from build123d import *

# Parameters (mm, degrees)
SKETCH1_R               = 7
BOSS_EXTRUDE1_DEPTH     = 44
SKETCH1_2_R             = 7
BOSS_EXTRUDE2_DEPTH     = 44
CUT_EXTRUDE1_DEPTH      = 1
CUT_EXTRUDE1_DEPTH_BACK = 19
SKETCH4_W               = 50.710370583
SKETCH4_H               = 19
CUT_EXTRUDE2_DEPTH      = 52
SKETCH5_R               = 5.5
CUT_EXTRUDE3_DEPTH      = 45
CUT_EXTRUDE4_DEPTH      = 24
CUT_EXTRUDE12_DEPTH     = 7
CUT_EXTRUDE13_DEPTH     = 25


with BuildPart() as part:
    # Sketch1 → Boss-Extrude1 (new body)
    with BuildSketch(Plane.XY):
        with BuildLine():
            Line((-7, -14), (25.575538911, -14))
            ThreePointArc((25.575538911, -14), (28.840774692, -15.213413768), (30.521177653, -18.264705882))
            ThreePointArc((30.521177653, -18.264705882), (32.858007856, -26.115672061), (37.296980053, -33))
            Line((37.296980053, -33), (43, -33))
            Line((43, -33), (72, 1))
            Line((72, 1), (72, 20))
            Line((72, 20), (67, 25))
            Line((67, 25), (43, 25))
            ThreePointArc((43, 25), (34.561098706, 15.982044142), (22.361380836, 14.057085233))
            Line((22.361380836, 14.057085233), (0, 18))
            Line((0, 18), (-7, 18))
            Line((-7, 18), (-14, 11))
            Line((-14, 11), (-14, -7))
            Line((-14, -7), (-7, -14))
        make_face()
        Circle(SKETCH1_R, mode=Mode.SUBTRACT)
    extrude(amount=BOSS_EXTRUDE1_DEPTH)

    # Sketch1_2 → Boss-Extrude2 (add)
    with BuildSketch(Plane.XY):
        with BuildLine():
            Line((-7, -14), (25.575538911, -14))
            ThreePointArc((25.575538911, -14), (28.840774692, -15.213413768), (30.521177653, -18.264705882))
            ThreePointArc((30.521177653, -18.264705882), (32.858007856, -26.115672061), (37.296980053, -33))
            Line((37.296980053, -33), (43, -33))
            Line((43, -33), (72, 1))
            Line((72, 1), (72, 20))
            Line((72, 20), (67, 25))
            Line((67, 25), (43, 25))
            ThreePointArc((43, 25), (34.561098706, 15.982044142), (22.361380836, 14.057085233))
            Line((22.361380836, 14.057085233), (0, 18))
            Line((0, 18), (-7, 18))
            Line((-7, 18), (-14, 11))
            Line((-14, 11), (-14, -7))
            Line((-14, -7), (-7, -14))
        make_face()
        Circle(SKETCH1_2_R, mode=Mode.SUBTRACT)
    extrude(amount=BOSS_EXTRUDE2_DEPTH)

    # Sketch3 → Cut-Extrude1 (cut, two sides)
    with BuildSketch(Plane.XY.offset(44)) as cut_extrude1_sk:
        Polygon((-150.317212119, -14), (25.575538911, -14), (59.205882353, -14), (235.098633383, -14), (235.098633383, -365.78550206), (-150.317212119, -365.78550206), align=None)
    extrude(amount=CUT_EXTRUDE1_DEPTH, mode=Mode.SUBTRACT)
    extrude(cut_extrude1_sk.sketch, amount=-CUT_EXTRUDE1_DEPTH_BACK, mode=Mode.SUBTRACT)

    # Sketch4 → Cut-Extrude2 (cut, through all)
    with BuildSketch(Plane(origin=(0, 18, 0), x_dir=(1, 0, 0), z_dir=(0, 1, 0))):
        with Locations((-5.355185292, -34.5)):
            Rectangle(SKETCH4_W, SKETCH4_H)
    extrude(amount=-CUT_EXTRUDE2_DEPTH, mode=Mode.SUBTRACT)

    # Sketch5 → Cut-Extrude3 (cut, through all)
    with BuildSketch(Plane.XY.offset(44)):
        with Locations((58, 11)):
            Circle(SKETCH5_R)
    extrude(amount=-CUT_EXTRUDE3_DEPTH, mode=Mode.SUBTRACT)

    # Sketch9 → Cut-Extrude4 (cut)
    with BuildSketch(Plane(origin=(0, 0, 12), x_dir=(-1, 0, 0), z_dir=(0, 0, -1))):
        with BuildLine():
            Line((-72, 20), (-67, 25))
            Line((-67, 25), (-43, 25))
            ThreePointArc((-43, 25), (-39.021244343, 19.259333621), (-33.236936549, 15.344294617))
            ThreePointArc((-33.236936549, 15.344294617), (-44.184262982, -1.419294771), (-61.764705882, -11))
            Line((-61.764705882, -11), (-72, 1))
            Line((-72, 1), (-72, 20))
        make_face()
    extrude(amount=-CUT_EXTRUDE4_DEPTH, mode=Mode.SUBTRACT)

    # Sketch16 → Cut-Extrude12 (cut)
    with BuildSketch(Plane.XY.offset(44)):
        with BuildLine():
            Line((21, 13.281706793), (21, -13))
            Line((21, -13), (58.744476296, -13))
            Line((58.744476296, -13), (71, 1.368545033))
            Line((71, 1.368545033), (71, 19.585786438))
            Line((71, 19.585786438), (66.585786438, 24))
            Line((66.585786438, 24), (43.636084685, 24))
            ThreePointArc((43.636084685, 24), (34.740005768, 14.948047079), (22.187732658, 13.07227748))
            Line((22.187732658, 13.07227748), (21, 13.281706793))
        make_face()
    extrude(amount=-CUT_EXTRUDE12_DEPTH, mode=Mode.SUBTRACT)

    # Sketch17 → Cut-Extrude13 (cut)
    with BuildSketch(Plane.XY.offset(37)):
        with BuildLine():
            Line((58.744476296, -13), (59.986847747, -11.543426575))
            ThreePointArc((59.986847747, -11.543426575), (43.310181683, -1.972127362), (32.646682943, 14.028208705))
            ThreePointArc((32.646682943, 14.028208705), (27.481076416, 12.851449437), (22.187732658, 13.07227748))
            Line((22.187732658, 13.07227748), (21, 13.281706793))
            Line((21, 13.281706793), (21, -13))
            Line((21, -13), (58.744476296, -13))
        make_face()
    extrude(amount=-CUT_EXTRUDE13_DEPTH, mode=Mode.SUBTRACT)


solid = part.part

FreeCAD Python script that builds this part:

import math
import FreeCAD as App
import Part
import Sketcher

V = App.Vector
Q = App.Units.Quantity

doc = App.newDocument("Part")
params = doc.addObject("Spreadsheet::Sheet", "Params")
for row, (alias, value) in enumerate([
    ("sketch1_diameter", "14 mm"),
    ("sketch1_radius", "5 mm"),
    ("sketch1_radius2", "29 mm"),
    ("sketch1_radius3", "19 mm"),
    ("sketch1_width", "24 mm"),
    ("pad1_length", "44 mm"),
    ("sketch2_diameter", "14 mm"),
    ("sketch2_radius", "5 mm"),
    ("sketch2_radius2", "29 mm"),
    ("sketch2_radius3", "19 mm"),
    ("sketch2_width", "24 mm"),
    ("pad2_length", "44 mm"),
    ("pocket1_length", "1 mm"),
    ("pocket1_length2", "19 mm"),
    ("sketch4_height", "19 mm"),
    ("sketch5_diameter", "11 mm"),
    ("sketch6_radius", "41 mm"),
    ("sketch6_radius2", "19 mm"),
    ("sketch6_width", "24 mm"),
    ("sketch6_height", "19 mm"),
    ("pocket4_length", "24 mm"),
    ("sketch7_radius", "20 mm"),
    ("pocket5_length", "7 mm"),
    ("sketch8_radius", "42 mm"),
    ("sketch8_radius2", "20 mm"),
    ("pocket6_length", "25 mm"),
], start=1):
    params.set(f"A{row}", alias)
    params.set(f"B{row}", "=" + value)
    params.setAlias(f"B{row}", alias)

body = doc.addObject("PartDesign::Body", "Body")

# Sketch on XY plane
sketch1 = body.newObject("Sketcher::SketchObject", "Sketch")
sketch1.AttachmentSupport = (doc.getObject("XY_Plane"), [""])
sketch1.MapMode = "FlatFace"
sketch1.addGeometry([
    Part.LineSegment(V(-7, -14, 0), V(26, -14, 0)),  # 0
    Part.ArcOfCircle(Part.Circle(V(26, -19, 0), V(0, 0, 1), 5), math.radians(8), math.radians(90)),  # 1
    Part.ArcOfCircle(Part.Circle(V(59, -14, 0), V(0, 0, 1), 29), math.radians(-172), math.radians(-139)),  # 2
    Part.LineSegment(V(37, -33, 0), V(43, -33, 0)),  # 3
    Part.LineSegment(V(43, -33, 0), V(72, 1, 0)),  # 4
    Part.LineSegment(V(72, 1, 0), V(72, 20, 0)),  # 5
    Part.LineSegment(V(72, 20, 0), V(67, 25, 0)),  # 6
    Part.LineSegment(V(67, 25, 0), V(43, 25, 0)),  # 7
    Part.ArcOfCircle(Part.Circle(V(26, 33, 0), V(0, 0, 1), 19), math.radians(-100), math.radians(-24)),  # 8
    Part.LineSegment(V(22, 14, 0), V(0, 18, 0)),  # 9
    Part.LineSegment(V(0, 18, 0), V(-7, 18, 0)),  # 10
    Part.LineSegment(V(-7, 18, 0), V(-14, 11, 0)),  # 11
    Part.LineSegment(V(-14, 11, 0), V(-14, -7, 0)),  # 12
    Part.LineSegment(V(-14, -7, 0), V(-7, -14, 0)),  # 13
    Part.Circle(V(0, 0, 0), V(0, 0, 1), 7),  # 14
], False)
sketch1.addConstraint([
    Sketcher.Constraint("Tangent", 0, 2, 1, 2),
    Sketcher.Constraint("Tangent", 1, 1, 2, 1),
    Sketcher.Constraint("Coincident", 2, 2, 3, 1),
    Sketcher.Constraint("Coincident", 3, 2, 4, 1),
    Sketcher.Constraint("Coincident", 4, 2, 5, 1),
    Sketcher.Constraint("Coincident", 5, 2, 6, 1),
    Sketcher.Constraint("Coincident", 6, 2, 7, 1),
    Sketcher.Constraint("Coincident", 7, 2, 8, 2),
    Sketcher.Constraint("Tangent", 8, 1, 9, 1),
    Sketcher.Constraint("Coincident", 9, 2, 10, 1),
    Sketcher.Constraint("Coincident", 10, 2, 11, 1),
    Sketcher.Constraint("Coincident", 11, 2, 12, 1),
    Sketcher.Constraint("Coincident", 12, 2, 13, 1),
    Sketcher.Constraint("Coincident", 13, 2, 0, 1),
    Sketcher.Constraint("Horizontal", 0),
    Sketcher.Constraint("Horizontal", 3),
    Sketcher.Constraint("Vertical", 5),
    Sketcher.Constraint("Horizontal", 7),
    Sketcher.Constraint("Horizontal", 10),
    Sketcher.Constraint("Vertical", 12),
    Sketcher.Constraint("Coincident", 14, 3, -1, 1),
    Sketcher.Constraint("PointOnObject", 9, 2, -2),
    Sketcher.Constraint("Perpendicular", 6, 11),
    Sketcher.Constraint("Perpendicular", 11, 13),
    Sketcher.Constraint("Horizontal", 2, 3, 0, 2),
    Sketcher.Constraint("Vertical", 3, 2, 7, 2),
    Sketcher.Constraint("Vertical", 10, 2, 13, 2),
    Sketcher.Constraint("Equal", 11, 13),
    Sketcher.Constraint("Diameter", 14, 14.0),
    Sketcher.Constraint("Radius", 1, 5.0),
    Sketcher.Constraint("Radius", 2, 29.0),
    Sketcher.Constraint("Radius", 8, 19.0),
    Sketcher.Constraint("DistanceX", 7, 2, 7, 1, 24.0),
    Sketcher.Constraint("DistanceX", 10, 2, 10, 1, 7.0),
    Sketcher.Constraint("DistanceY", 5, 1, 5, 2, 19.0),
    Sketcher.Constraint("DistanceY", 12, 2, 12, 1, 18.0),
    Sketcher.Constraint("Angle", 9, Q("170 deg")),
    Sketcher.Constraint("DistanceY", 1, 3, -1, 1, 19.0),
    Sketcher.Constraint("DistanceY", 2, 2, -1, 1, 33.0),
    Sketcher.Constraint("DistanceX", -1, 1, 3, 2, 43.0),
    Sketcher.Constraint("DistanceX", -1, 1, 4, 2, 72.0),
    Sketcher.Constraint("DistanceY", -1, 1, 4, 2, 1.0),
    Sketcher.Constraint("DistanceY", -1, 1, 9, 2, 18.0),
    Sketcher.Constraint("DistanceX", 0, 1, 0, 2, 32.575539),
])
sketch1.setExpression("Constraints[28]", "Params.sketch1_diameter")
sketch1.setExpression("Constraints[29]", "Params.sketch1_radius")
sketch1.setExpression("Constraints[30]", "Params.sketch1_radius2")
sketch1.setExpression("Constraints[31]", "Params.sketch1_radius3")
sketch1.setExpression("Constraints[32]", "Params.sketch1_width")
pad1 = body.newObject("PartDesign::Pad", "Pad")
pad1.Profile = sketch1
pad1.setExpression("Length", "Params.pad1_length")

# Sketch on XY plane
sketch2 = body.newObject("Sketcher::SketchObject", "Sketch001")
sketch2.AttachmentSupport = (doc.getObject("XY_Plane"), [""])
sketch2.MapMode = "FlatFace"
sketch2.addGeometry([
    Part.LineSegment(V(-7, -14, 0), V(26, -14, 0)),  # 0
    Part.ArcOfCircle(Part.Circle(V(26, -19, 0), V(0, 0, 1), 5), math.radians(8), math.radians(90)),  # 1
    Part.ArcOfCircle(Part.Circle(V(59, -14, 0), V(0, 0, 1), 29), math.radians(-172), math.radians(-139)),  # 2
    Part.LineSegment(V(37, -33, 0), V(43, -33, 0)),  # 3
    Part.LineSegment(V(43, -33, 0), V(72, 1, 0)),  # 4
    Part.LineSegment(V(72, 1, 0), V(72, 20, 0)),  # 5
    Part.LineSegment(V(72, 20, 0), V(67, 25, 0)),  # 6
    Part.LineSegment(V(67, 25, 0), V(43, 25, 0)),  # 7
    Part.ArcOfCircle(Part.Circle(V(26, 33, 0), V(0, 0, 1), 19), math.radians(-100), math.radians(-24)),  # 8
    Part.LineSegment(V(22, 14, 0), V(0, 18, 0)),  # 9
    Part.LineSegment(V(0, 18, 0), V(-7, 18, 0)),  # 10
    Part.LineSegment(V(-7, 18, 0), V(-14, 11, 0)),  # 11
    Part.LineSegment(V(-14, 11, 0), V(-14, -7, 0)),  # 12
    Part.LineSegment(V(-14, -7, 0), V(-7, -14, 0)),  # 13
    Part.Circle(V(0, 0, 0), V(0, 0, 1), 7),  # 14
], False)
sketch2.addConstraint([
    Sketcher.Constraint("Tangent", 0, 2, 1, 2),
    Sketcher.Constraint("Tangent", 1, 1, 2, 1),
    Sketcher.Constraint("Coincident", 2, 2, 3, 1),
    Sketcher.Constraint("Coincident", 3, 2, 4, 1),
    Sketcher.Constraint("Coincident", 4, 2, 5, 1),
    Sketcher.Constraint("Coincident", 5, 2, 6, 1),
    Sketcher.Constraint("Coincident", 6, 2, 7, 1),
    Sketcher.Constraint("Coincident", 7, 2, 8, 2),
    Sketcher.Constraint("Tangent", 8, 1, 9, 1),
    Sketcher.Constraint("Coincident", 9, 2, 10, 1),
    Sketcher.Constraint("Coincident", 10, 2, 11, 1),
    Sketcher.Constraint("Coincident", 11, 2, 12, 1),
    Sketcher.Constraint("Coincident", 12, 2, 13, 1),
    Sketcher.Constraint("Coincident", 13, 2, 0, 1),
    Sketcher.Constraint("Horizontal", 0),
    Sketcher.Constraint("Horizontal", 3),
    Sketcher.Constraint("Vertical", 5),
    Sketcher.Constraint("Horizontal", 7),
    Sketcher.Constraint("Horizontal", 10),
    Sketcher.Constraint("Vertical", 12),
    Sketcher.Constraint("Coincident", 14, 3, -1, 1),
    Sketcher.Constraint("PointOnObject", 9, 2, -2),
    Sketcher.Constraint("Perpendicular", 6, 11),
    Sketcher.Constraint("Perpendicular", 11, 13),
    Sketcher.Constraint("Horizontal", 2, 3, 0, 2),
    Sketcher.Constraint("Vertical", 3, 2, 7, 2),
    Sketcher.Constraint("Vertical", 10, 2, 13, 2),
    Sketcher.Constraint("Equal", 11, 13),
    Sketcher.Constraint("Diameter", 14, 14.0),
    Sketcher.Constraint("Radius", 1, 5.0),
    Sketcher.Constraint("Radius", 2, 29.0),
    Sketcher.Constraint("Radius", 8, 19.0),
    Sketcher.Constraint("DistanceX", 7, 2, 7, 1, 24.0),
    Sketcher.Constraint("DistanceX", 10, 2, 10, 1, 7.0),
    Sketcher.Constraint("DistanceY", 5, 1, 5, 2, 19.0),
    Sketcher.Constraint("DistanceY", 12, 2, 12, 1, 18.0),
    Sketcher.Constraint("Angle", 9, Q("170 deg")),
    Sketcher.Constraint("DistanceY", 1, 3, -1, 1, 19.0),
    Sketcher.Constraint("DistanceY", 2, 2, -1, 1, 33.0),
    Sketcher.Constraint("DistanceX", -1, 1, 3, 2, 43.0),
    Sketcher.Constraint("DistanceX", -1, 1, 4, 2, 72.0),
    Sketcher.Constraint("DistanceY", -1, 1, 4, 2, 1.0),
    Sketcher.Constraint("DistanceY", -1, 1, 9, 2, 18.0),
    Sketcher.Constraint("DistanceX", 0, 1, 0, 2, 32.575539),
])
sketch2.setExpression("Constraints[28]", "Params.sketch2_diameter")
sketch2.setExpression("Constraints[29]", "Params.sketch2_radius")
sketch2.setExpression("Constraints[30]", "Params.sketch2_radius2")
sketch2.setExpression("Constraints[31]", "Params.sketch2_radius3")
sketch2.setExpression("Constraints[32]", "Params.sketch2_width")
pad2 = body.newObject("PartDesign::Pad", "Pad001")
pad2.Profile = sketch2
pad2.setExpression("Length", "Params.pad2_length")

# Sketch on XY plane
sketch3 = body.newObject("Sketcher::SketchObject", "Sketch002")
sketch3.AttachmentSupport = (doc.getObject("XY_Plane"), [""])
sketch3.MapMode = "FlatFace"
sketch3.AttachmentOffset = App.Placement(V(0, 0, 44), App.Rotation())
sketch3.addGeometry([
    Part.LineSegment(V(235, -14, 0), V(-150, -14, 0)),
    Part.LineSegment(V(-150, -14, 0), V(-150, -366, 0)),
    Part.LineSegment(V(-150, -366, 0), V(235, -366, 0)),
    Part.LineSegment(V(235, -366, 0), V(235, -14, 0)),
], False)
sketch3.addConstraint([
    Sketcher.Constraint("Coincident", 0, 2, 1, 1),
    Sketcher.Constraint("Coincident", 1, 2, 2, 1),
    Sketcher.Constraint("Coincident", 2, 2, 3, 1),
    Sketcher.Constraint("Coincident", 3, 2, 0, 1),
    Sketcher.Constraint("Horizontal", 0),
    Sketcher.Constraint("Vertical", 1),
    Sketcher.Constraint("Horizontal", 2),
    Sketcher.Constraint("Vertical", 3),
    Sketcher.Constraint("DistanceY", 0, 2, -1, 1, 14.0),
    Sketcher.Constraint("DistanceX", 0, 2, 0, 1, 385.415846),
    Sketcher.Constraint("DistanceY", 1, 2, 1, 1, 351.785502),
    Sketcher.Constraint("DistanceX", 0, 2, -1, 1, 150.317212),
])
pocket1 = body.newObject("PartDesign::Pocket", "Pocket")
pocket1.Profile = sketch3
pocket1.Type = "TwoLengths"
pocket1.setExpression("Length", "Params.pocket1_length")
pocket1.setExpression("Length2", "Params.pocket1_length2")
pocket1.Reversed = True

# Sketch on XZ plane
sketch4 = body.newObject("Sketcher::SketchObject", "Sketch003")
sketch4.AttachmentSupport = (doc.getObject("XZ_Plane"), [""])
sketch4.MapMode = "FlatFace"
sketch4.AttachmentOffset = App.Placement(V(0, 0, -18), App.Rotation())
sketch4.addGeometry([
    Part.LineSegment(V(-31, 25, 0), V(-31, 44, 0)),
    Part.LineSegment(V(-31, 44, 0), V(20, 44, 0)),
    Part.LineSegment(V(20, 44, 0), V(20, 25, 0)),
    Part.LineSegment(V(20, 25, 0), V(-31, 25, 0)),
], False)
sketch4.addConstraint([
    Sketcher.Constraint("Coincident", 0, 2, 1, 1),
    Sketcher.Constraint("Coincident", 1, 2, 2, 1),
    Sketcher.Constraint("Coincident", 2, 2, 3, 1),
    Sketcher.Constraint("Coincident", 3, 2, 0, 1),
    Sketcher.Constraint("Vertical", 0),
    Sketcher.Constraint("Horizontal", 1),
    Sketcher.Constraint("Vertical", 2),
    Sketcher.Constraint("Horizontal", 3),
    Sketcher.Constraint("DistanceY", 0, 1, 0, 2, 19.0),
    Sketcher.Constraint("DistanceY", -1, 1, 0, 2, 44.0),
    Sketcher.Constraint("DistanceX", -1, 1, 1, 2, 20.0),
    Sketcher.Constraint("DistanceX", 1, 1, 1, 2, 50.710371),
])
sketch4.setExpression("Constraints[8]", "Params.sketch4_height")
pocket2 = body.newObject("PartDesign::Pocket", "Pocket001")
pocket2.Profile = sketch4
pocket2.Type = "ThroughAll"
pocket2.Reversed = True

# Sketch on XY plane
sketch5 = body.newObject("Sketcher::SketchObject", "Sketch004")
sketch5.AttachmentSupport = (doc.getObject("XY_Plane"), [""])
sketch5.MapMode = "FlatFace"
sketch5.AttachmentOffset = App.Placement(V(0, 0, 44), App.Rotation())
sketch5.addGeometry(Part.Circle(V(58, 11, 0), V(0, 0, 1), 6), False)
sketch5.addConstraint([
    Sketcher.Constraint("Diameter", 0, 11.0),
    Sketcher.Constraint("DistanceX", -1, 1, 0, 3, 58.0),
    Sketcher.Constraint("DistanceY", -1, 1, 0, 3, 11.0),
])
sketch5.setExpression("Constraints[0]", "Params.sketch5_diameter")
pocket3 = body.newObject("PartDesign::Pocket", "Pocket002")
pocket3.Profile = sketch5
pocket3.Type = "ThroughAll"

# Sketch on XY plane
sketch6 = body.newObject("Sketcher::SketchObject", "Sketch005")
sketch6.AttachmentSupport = (doc.getObject("XY_Plane"), [""])
sketch6.MapMode = "FlatFace"
sketch6.AttachmentOffset = App.Placement(V(0, 0, 12), App.Rotation())
sketch6.addGeometry([
    Part.LineSegment(V(67, 25, 0), V(72, 20, 0)),  # 0
    Part.LineSegment(V(72, 20, 0), V(72, 1, 0)),  # 1
    Part.LineSegment(V(72, 1, 0), V(62, -11, 0)),  # 2
    Part.ArcOfCircle(Part.Circle(V(72, 29, 0), V(0, 0, 1), 41), math.radians(-161), math.radians(-104)),  # 3
    Part.ArcOfCircle(Part.Circle(V(26, 33, 0), V(0, 0, 1), 19), math.radians(-66), math.radians(-24)),  # 4
    Part.LineSegment(V(43, 25, 0), V(67, 25, 0)),  # 5
], False)
sketch6.addConstraint([
    Sketcher.Constraint("Coincident", 0, 2, 1, 1),
    Sketcher.Constraint("Coincident", 1, 2, 2, 1),
    Sketcher.Constraint("Coincident", 2, 2, 3, 2),
    Sketcher.Constraint("Coincident", 3, 1, 4, 1),
    Sketcher.Constraint("Coincident", 4, 2, 5, 1),
    Sketcher.Constraint("Coincident", 5, 2, 0, 1),
    Sketcher.Constraint("Vertical", 1),
    Sketcher.Constraint("Horizontal", 5),
    Sketcher.Constraint("Vertical", 3, 3, 0, 2),
    Sketcher.Constraint("Radius", 3, 41.0),
    Sketcher.Constraint("Radius", 4, 19.0),
    Sketcher.Constraint("DistanceX", 5, 1, 5, 2, 24.0),
    Sketcher.Constraint("DistanceY", 1, 2, 1, 1, 19.0),
    Sketcher.Constraint("Angle", 0, Q("-45 deg")),
    Sketcher.Constraint("DistanceX", -1, 1, 3, 3, 72.0),
    Sketcher.Constraint("DistanceY", -1, 1, 0, 2, 20.0),
    Sketcher.Constraint("DistanceY", 2, 2, -1, 1, 11.0),
    Sketcher.Constraint("DistanceX", -1, 1, 4, 2, 43.0),
    Sketcher.Constraint("DistanceY", 3, 3, 4, 3, 4.066559),
    Sketcher.Constraint("DistanceX", 4, 3, 2, 2, 36.10401),
])
sketch6.setExpression("Constraints[9]", "Params.sketch6_radius")
sketch6.setExpression("Constraints[10]", "Params.sketch6_radius2")
sketch6.setExpression("Constraints[11]", "Params.sketch6_width")
sketch6.setExpression("Constraints[12]", "Params.sketch6_height")
pocket4 = body.newObject("PartDesign::Pocket", "Pocket003")
pocket4.Profile = sketch6
pocket4.setExpression("Length", "Params.pocket4_length")
pocket4.Reversed = True

# Sketch on XY plane
sketch7 = body.newObject("Sketcher::SketchObject", "Sketch006")
sketch7.AttachmentSupport = (doc.getObject("XY_Plane"), [""])
sketch7.MapMode = "FlatFace"
sketch7.AttachmentOffset = App.Placement(V(0, 0, 44), App.Rotation())
sketch7.addGeometry([
    Part.LineSegment(V(21, 13.3, 0), V(21, -13, 0)),  # 0
    Part.LineSegment(V(21, -13, 0), V(58.7, -13, 0)),  # 1
    Part.LineSegment(V(58.7, -13, 0), V(71, 1.4, 0)),  # 2
    Part.LineSegment(V(71, 1.4, 0), V(71, 19.6, 0)),  # 3
    Part.LineSegment(V(71, 19.6, 0), V(66.6, 24, 0)),  # 4
    Part.LineSegment(V(66.6, 24, 0), V(43.6, 24, 0)),  # 5
    Part.ArcOfCircle(Part.Circle(V(25.7, 32.8, 0), V(0, 0, 1), 20), math.radians(-100), math.radians(-26)),  # 6
    Part.LineSegment(V(22.2, 13.1, 0), V(21, 13.3, 0)),  # 7
], False)
sketch7.addConstraint([
    Sketcher.Constraint("Coincident", 0, 2, 1, 1),
    Sketcher.Constraint("Coincident", 1, 2, 2, 1),
    Sketcher.Constraint("Coincident", 2, 2, 3, 1),
    Sketcher.Constraint("Coincident", 3, 2, 4, 1),
    Sketcher.Constraint("Coincident", 4, 2, 5, 1),
    Sketcher.Constraint("Coincident", 5, 2, 6, 2),
    Sketcher.Constraint("Tangent", 6, 1, 7, 1),
    Sketcher.Constraint("Coincident", 7, 2, 0, 1),
    Sketcher.Constraint("Vertical", 0),
    Sketcher.Constraint("Horizontal", 1),
    Sketcher.Constraint("Vertical", 3),
    Sketcher.Constraint("Horizontal", 5),
    Sketcher.Constraint("Radius", 6, 20.0),
    Sketcher.Constraint("Angle", 4, Q("135 deg")),
    Sketcher.Constraint("Angle", 7, Q("170 deg")),
    Sketcher.Constraint("DistanceX", -1, 1, 0, 2, 21.0),
    Sketcher.Constraint("DistanceY", 0, 2, -1, 1, 13.0),
    Sketcher.Constraint("DistanceX", -1, 1, 2, 2, 71.0),
    Sketcher.Constraint("DistanceY", -1, 1, 4, 2, 24.0),
    Sketcher.Constraint("DistanceX", 5, 2, 5, 1, 22.949702),
    Sketcher.Constraint("DistanceY", 3, 1, 3, 2, 18.217241),
    Sketcher.Constraint("Distance", 4, 6.242641),
    Sketcher.Constraint("DistanceX", 1, 1, 1, 2, 37.744476),
    Sketcher.Constraint("DistanceY", 0, 2, 0, 1, 26.281707),
])
sketch7.setExpression("Constraints[12]", "Params.sketch7_radius")
pocket5 = body.newObject("PartDesign::Pocket", "Pocket004")
pocket5.Profile = sketch7
pocket5.setExpression("Length", "Params.pocket5_length")

# Sketch on XY plane
sketch8 = body.newObject("Sketcher::SketchObject", "Sketch007")
sketch8.AttachmentSupport = (doc.getObject("XY_Plane"), [""])
sketch8.MapMode = "FlatFace"
sketch8.AttachmentOffset = App.Placement(V(0, 0, 37), App.Rotation())
sketch8.addGeometry([
    Part.LineSegment(V(58.7, -13, 0), V(60, -11.5, 0)),  # 0
    Part.ArcOfCircle(Part.Circle(V(72, 28.7, 0), V(0, 0, 1), 42), math.radians(-160), math.radians(-107)),  # 1
    Part.ArcOfCircle(Part.Circle(V(25.7, 32.8, 0), V(0, 0, 1), 20), math.radians(-100), math.radians(-70)),  # 2
    Part.LineSegment(V(22.2, 13.1, 0), V(21, 13.3, 0)),  # 3
    Part.LineSegment(V(21, 13.3, 0), V(21, -13, 0)),  # 4
    Part.LineSegment(V(21, -13, 0), V(58.7, -13, 0)),  # 5
], False)
sketch8.addConstraint([
    Sketcher.Constraint("Coincident", 0, 2, 1, 2),
    Sketcher.Constraint("Coincident", 1, 1, 2, 2),
    Sketcher.Constraint("Tangent", 2, 1, 3, 1),
    Sketcher.Constraint("Coincident", 3, 2, 4, 1),
    Sketcher.Constraint("Coincident", 4, 2, 5, 1),
    Sketcher.Constraint("Coincident", 5, 2, 0, 1),
    Sketcher.Constraint("Vertical", 4),
    Sketcher.Constraint("Horizontal", 5),
    Sketcher.Constraint("Radius", 1, 42.0),
    Sketcher.Constraint("Radius", 2, 20.0),
    Sketcher.Constraint("Angle", 3, Q("170 deg")),
    Sketcher.Constraint("DistanceX", -1, 1, 1, 3, 72.0),
    Sketcher.Constraint("DistanceX", -1, 1, 3, 2, 21.0),
    Sketcher.Constraint("DistanceY", 4, 2, -1, 1, 13.0),
    Sketcher.Constraint("DistanceY", 0, 2, 1, 3, 40.2453),
    Sketcher.Constraint("DistanceY", 3, 2, 1, 1, 0.746502),
    Sketcher.Constraint("DistanceX", 5, 1, 5, 2, 37.744476),
    Sketcher.Constraint("DistanceY", 4, 2, 4, 1, 26.281707),
    Sketcher.Constraint("DistanceY", 1, 3, 2, 3, 4.066559),
])
sketch8.setExpression("Constraints[8]", "Params.sketch8_radius")
sketch8.setExpression("Constraints[9]", "Params.sketch8_radius2")
pocket6 = body.newObject("PartDesign::Pocket", "Pocket005")
pocket6.Profile = sketch8
pocket6.setExpression("Length", "Params.pocket6_length")

doc.recompute()
